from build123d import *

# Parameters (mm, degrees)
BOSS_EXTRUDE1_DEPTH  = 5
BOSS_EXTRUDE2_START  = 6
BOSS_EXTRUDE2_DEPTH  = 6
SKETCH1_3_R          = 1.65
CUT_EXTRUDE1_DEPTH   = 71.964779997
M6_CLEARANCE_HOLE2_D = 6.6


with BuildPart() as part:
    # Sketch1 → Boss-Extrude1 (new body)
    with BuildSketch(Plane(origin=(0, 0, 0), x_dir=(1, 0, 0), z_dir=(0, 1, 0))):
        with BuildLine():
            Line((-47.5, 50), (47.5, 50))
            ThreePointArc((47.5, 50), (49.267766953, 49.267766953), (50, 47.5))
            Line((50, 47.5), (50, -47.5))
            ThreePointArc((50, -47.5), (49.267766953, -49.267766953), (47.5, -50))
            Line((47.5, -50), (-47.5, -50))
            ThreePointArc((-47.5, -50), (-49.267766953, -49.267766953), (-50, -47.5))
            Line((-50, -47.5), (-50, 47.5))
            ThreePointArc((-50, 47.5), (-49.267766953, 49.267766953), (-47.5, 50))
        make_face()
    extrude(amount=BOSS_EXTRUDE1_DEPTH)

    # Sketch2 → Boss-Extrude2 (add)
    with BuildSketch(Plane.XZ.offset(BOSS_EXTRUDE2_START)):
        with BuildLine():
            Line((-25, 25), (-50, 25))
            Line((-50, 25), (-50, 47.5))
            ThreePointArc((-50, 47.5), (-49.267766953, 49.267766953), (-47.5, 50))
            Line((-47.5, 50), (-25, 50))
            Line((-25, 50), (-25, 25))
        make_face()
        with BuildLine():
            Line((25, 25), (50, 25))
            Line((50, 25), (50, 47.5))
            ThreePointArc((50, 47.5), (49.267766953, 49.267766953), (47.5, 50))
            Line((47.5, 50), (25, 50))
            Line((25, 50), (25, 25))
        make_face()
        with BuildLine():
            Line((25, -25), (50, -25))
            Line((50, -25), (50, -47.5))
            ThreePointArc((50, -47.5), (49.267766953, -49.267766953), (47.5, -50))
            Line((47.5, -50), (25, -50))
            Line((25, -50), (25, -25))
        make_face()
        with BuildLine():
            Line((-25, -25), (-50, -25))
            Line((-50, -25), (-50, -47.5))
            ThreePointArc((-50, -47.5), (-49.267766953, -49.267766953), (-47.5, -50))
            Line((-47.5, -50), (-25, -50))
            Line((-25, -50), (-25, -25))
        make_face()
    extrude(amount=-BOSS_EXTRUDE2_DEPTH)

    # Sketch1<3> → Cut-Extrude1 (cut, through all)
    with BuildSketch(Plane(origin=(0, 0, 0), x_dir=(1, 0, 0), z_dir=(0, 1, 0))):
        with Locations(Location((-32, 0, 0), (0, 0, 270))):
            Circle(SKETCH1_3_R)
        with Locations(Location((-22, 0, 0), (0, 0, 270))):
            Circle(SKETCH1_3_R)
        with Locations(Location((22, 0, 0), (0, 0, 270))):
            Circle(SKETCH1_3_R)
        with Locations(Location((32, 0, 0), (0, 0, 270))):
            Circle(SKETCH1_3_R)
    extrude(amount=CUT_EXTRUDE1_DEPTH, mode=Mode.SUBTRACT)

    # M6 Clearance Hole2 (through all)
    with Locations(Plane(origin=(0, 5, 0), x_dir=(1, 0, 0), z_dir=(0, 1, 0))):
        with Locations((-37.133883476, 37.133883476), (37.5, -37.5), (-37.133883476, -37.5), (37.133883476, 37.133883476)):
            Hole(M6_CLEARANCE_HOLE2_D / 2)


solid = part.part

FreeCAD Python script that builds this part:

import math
import FreeCAD as App
import Part
import Sketcher

V = App.Vector

doc = App.newDocument("Part")
params = doc.addObject("Spreadsheet::Sheet", "Params")
for row, (alias, value) in enumerate([
    ("sketch1_radius", "2.5 mm"),
    ("sketch1_width", "95 mm"),
    ("pad1_length", "5 mm"),
    ("sketch2_radius", "2.5 mm"),
    ("sketch2_width", "25 mm"),
    ("pad2_length", "6 mm"),
    ("sketch3_diameter", "3.3 mm"),
    ("sketch4_diameter", "6.6 mm"),
    ("hole_diameter", "6.6 mm"),
], start=1):
    params.set(f"A{row}", alias)
    params.set(f"B{row}", "=" + value)
    params.setAlias(f"B{row}", alias)

body = doc.addObject("PartDesign::Body", "Body")

# Sketch on XZ plane
sketch1 = body.newObject("Sketcher::SketchObject", "Sketch")
sketch1.AttachmentSupport = (doc.getObject("XZ_Plane"), [""])
sketch1.MapMode = "FlatFace"
sketch1.addGeometry([
    Part.LineSegment(V(47.5, -50, 0), V(-47.5, -50, 0)),  # 0
    Part.ArcOfCircle(Part.Circle(V(-47.5, -47.5, 0), V(0, 0, 1), 2.5), math.radians(180), math.radians(270)),  # 1
    Part.LineSegment(V(-50, -47.5, 0), V(-50, 47.5, 0)),  # 2
    Part.ArcOfCircle(Part.Circle(V(-47.5, 47.5, 0), V(0, 0, 1), 2.5), math.radians(90), math.radians(180)),  # 3
    Part.LineSegment(V(-47.5, 50, 0), V(47.5, 50, 0)),  # 4
    Part.ArcOfCircle(Part.Circle(V(47.5, 47.5, 0), V(0, 0, 1), 2.5), math.radians(0), math.radians(90)),  # 5
    Part.LineSegment(V(50, 47.5, 0), V(50, -47.5, 0)),  # 6
    Part.ArcOfCircle(Part.Circle(V(47.5, -47.5, 0), V(0, 0, 1), 2.5), math.radians(-90), math.radians(0)),  # 7
], False)
sketch1.addConstraint([
    Sketcher.Constraint("Tangent", 0, 2, 1, 2),
    Sketcher.Constraint("Tangent", 1, 1, 2, 1),
    Sketcher.Constraint("Tangent", 2, 2, 3, 2),
    Sketcher.Constraint("Tangent", 3, 1, 4, 1),
    Sketcher.Constraint("Tangent", 4, 2, 5, 2),
    Sketcher.Constraint("Tangent", 5, 1, 6, 1),
    Sketcher.Constraint("Tangent", 6, 2, 7, 2),
    Sketcher.Constraint("Tangent", 7, 1, 0, 1),
    Sketcher.Constraint("Horizontal", 0),
    Sketcher.Constraint("Vertical", 2),
    Sketcher.Constraint("Horizontal", 4),
    Sketcher.Constraint("Vertical", 6),
    Sketcher.Constraint("Equal", 1, 3),
    Sketcher.Constraint("Equal", 3, 5),
    Sketcher.Constraint("Equal", 5, 7),
    Sketcher.Constraint("Symmetric", 1, 3, 5, 3, -1, 1),
    Sketcher.Constraint("Equal", 4, 2),
    Sketcher.Constraint("Radius", 1, 2.5),
    Sketcher.Constraint("DistanceX", 0, 2, 0, 1, 95.0),
])
sketch1.setExpression("Constraints[17]", "Params.sketch1_radius")
sketch1.setExpression("Constraints[18]", "Params.sketch1_width")
pad1 = body.newObject("PartDesign::Pad", "Pad")
pad1.Profile = sketch1
pad1.setExpression("Length", "Params.pad1_length")
pad1.Reversed = True

# Sketch on XZ plane
sketch2 = body.newObject("Sketcher::SketchObject", "Sketch001")
sketch2.AttachmentSupport = (doc.getObject("XZ_Plane"), [""])
sketch2.MapMode = "FlatFace"
sketch2.AttachmentOffset = App.Placement(V(0, 0, 6), App.Rotation())
sketch2.addGeometry([
    Part.LineSegment(V(-50, 25, 0), V(-25, 25, 0)),  # 0
    Part.LineSegment(V(-25, 25, 0), V(-25, 50, 0)),  # 1
    Part.LineSegment(V(-25, 50, 0), V(-47.5, 50, 0)),  # 2
    Part.ArcOfCircle(Part.Circle(V(-47.5, 47.5, 0), V(0, 0, 1), 2.5), math.radians(90), math.radians(180)),  # 3
    Part.LineSegment(V(-50, 47.5, 0), V(-50, 25, 0)),  # 4
    Part.LineSegment(V(25, 25, 0), V(50, 25, 0)),  # 5
    Part.LineSegment(V(50, 25, 0), V(50, 47.5, 0)),  # 6
    Part.ArcOfCircle(Part.Circle(V(47.5, 47.5, 0), V(0, 0, 1), 2.5), math.radians(0), math.radians(90)),  # 7
    Part.LineSegment(V(47.5, 50, 0), V(25, 50, 0)),  # 8
    Part.LineSegment(V(25, 50, 0), V(25, 25, 0)),  # 9
    Part.LineSegment(V(50, -25, 0), V(25, -25, 0)),  # 10
    Part.LineSegment(V(25, -25, 0), V(25, -50, 0)),  # 11
    Part.LineSegment(V(25, -50, 0), V(47.5, -50, 0)),  # 12
    Part.ArcOfCircle(Part.Circle(V(47.5, -47.5, 0), V(0, 0, 1), 2.5), math.radians(-90), math.radians(0)),  # 13
    Part.LineSegment(V(50, -47.5, 0), V(50, -25, 0)),  # 14
    Part.LineSegment(V(-25, -25, 0), V(-50, -25, 0)),  # 15
    Part.LineSegment(V(-50, -25, 0), V(-50, -47.5, 0)),  # 16
    Part.ArcOfCircle(Part.Circle(V(-47.5, -47.5, 0), V(0, 0, 1), 2.5), math.radians(180), math.radians(270)),  # 17
    Part.LineSegment(V(-47.5, -50, 0), V(-25, -50, 0)),  # 18
    Part.LineSegment(V(-25, -50, 0), V(-25, -25, 0)),  # 19
], False)
sketch2.addConstraint([
    Sketcher.Constraint("Coincident", 0, 2, 1, 1),
    Sketcher.Constraint("Coincident", 1, 2, 2, 1),
    Sketcher.Constraint("Tangent", 2, 2, 3, 1),
    Sketcher.Constraint("Tangent", 3, 2, 4, 1),
    Sketcher.Constraint("Coincident", 4, 2, 0, 1),
    Sketcher.Constraint("Coincident", 5, 2, 6, 1),
    Sketcher.Constraint("Tangent", 6, 2, 7, 1),
    Sketcher.Constraint("Tangent", 7, 2, 8, 1),
    Sketcher.Constraint("Coincident", 8, 2, 9, 1),
    Sketcher.Constraint("Coincident", 9, 2, 5, 1),
    Sketcher.Constraint("Coincident", 10, 2, 11, 1),
    Sketcher.Constraint("Coincident", 11, 2, 12, 1),
    Sketcher.Constraint("Tangent", 12, 2, 13, 1),
    Sketcher.Constraint("Tangent", 13, 2, 14, 1),
    Sketcher.Constraint("Coincident", 14, 2, 10, 1),
    Sketcher.Constraint("Coincident", 15, 2, 16, 1),
    Sketcher.Constraint("Tangent", 16, 2, 17, 1),
    Sketcher.Constraint("Tangent", 17, 2, 18, 1),
    Sketcher.Constraint("Coincident", 18, 2, 19, 1),
    Sketcher.Constraint("Coincident", 19, 2, 15, 1),
    Sketcher.Constraint("Horizontal", 0),
    Sketcher.Constraint("Vertical", 1),
    Sketcher.Constraint("Horizontal", 2),
    Sketcher.Constraint("Vertical", 4),
    Sketcher.Constraint("Horizontal", 5),
    Sketcher.Constraint("Vertical", 6),
    Sketcher.Constraint("Horizontal", 8),
    Sketcher.Constraint("Vertical", 9),
    Sketcher.Constraint("Horizontal", 10),
    Sketcher.Constraint("Vertical", 11),
    Sketcher.Constraint("Horizontal", 12),
    Sketcher.Constraint("Vertical", 14),
    Sketcher.Constraint("Horizontal", 15),
    Sketcher.Constraint("Vertical", 16),
    Sketcher.Constraint("Horizontal", 18),
    Sketcher.Constraint("Vertical", 19),
    Sketcher.Constraint("Equal", 3, 7),
    Sketcher.Constraint("Equal", 7, 13),
    Sketcher.Constraint("Equal", 13, 17),
    Sketcher.Constraint("Symmetric", 3, 3, 13, 3, -1, 1),
    Sketcher.Constraint("Symmetric", 7, 3, 17, 3, -1, 1),
    Sketcher.Constraint("Symmetric", 0, 2, 10, 2, -1, 1),
    Sketcher.Constraint("Symmetric", 9, 2, 19, 2, -1, 1),
    Sketcher.Constraint("Symmetric", 3, 3, 7, 3, -2),
    Sketcher.Constraint("Symmetric", 0, 2, 9, 2, -2),
    Sketcher.Constraint("Equal", 15, 1),
    Sketcher.Constraint("Radius", 3, 2.5),
    Sketcher.Constraint("DistanceX", 0, 1, 0, 2, 25.0),
    Sketcher.Constraint("DistanceX", 0, 2, -1, 1, 25.0),
    Sketcher.Constraint("DistanceY", -1, 1, 0, 2, 25.0),
])
sketch2.setExpression("Constraints[46]", "Params.sketch2_radius")
sketch2.setExpression("Constraints[47]", "Params.sketch2_width")
pad2 = body.newObject("PartDesign::Pad", "Pad001")
pad2.Profile = sketch2
pad2.setExpression("Length", "Params.pad2_length")
pad2.Reversed = True

# Sketch on XZ plane
sketch3 = body.newObject("Sketcher::SketchObject", "Sketch002")
sketch3.AttachmentSupport = (doc.getObject("XZ_Plane"), [""])
sketch3.MapMode = "FlatFace"
sketch3.addGeometry([
    Part.Circle(V(-32, 0, 0), V(0, 0, 1), 1.6),
    Part.Circle(V(-22, 0, 0), V(0, 0, 1), 1.6),
    Part.Circle(V(22, 0, 0), V(0, 0, 1), 1.6),
    Part.Circle(V(32, 0, 0), V(0, 0, 1), 1.6),
], False)
sketch3.addConstraint([
    Sketcher.Constraint("Equal", 0, 1),
    Sketcher.Constraint("Equal", 1, 2),
    Sketcher.Constraint("Equal", 2, 3),
    Sketcher.Constraint("Symmetric", 1, 3, 2, 3, -1, 1),
    Sketcher.Constraint("Symmetric", 0, 3, 3, 3, -1, 1),
    Sketcher.Constraint("PointOnObject", 0, 3, -1),
    Sketcher.Constraint("PointOnObject", 1, 3, -1),
    Sketcher.Constraint("Diameter", 0, 3.3),
    Sketcher.Constraint("DistanceX", 0, 3, -1, 1, 32.0),
    Sketcher.Constraint("DistanceX", 1, 3, -1, 1, 22.0),
])
sketch3.setExpression("Constraints[7]", "Params.sketch3_diameter")
pocket1 = body.newObject("PartDesign::Pocket", "Pocket")
pocket1.Profile = sketch3
pocket1.Type = "ThroughAll"

# Sketch on XZ plane
sketch4 = body.newObject("Sketcher::SketchObject", "Sketch003")
sketch4.AttachmentSupport = (doc.getObject("XZ_Plane"), [""])
sketch4.MapMode = "FlatFace"
sketch4.AttachmentOffset = App.Placement(V(0, 0, -5), App.Rotation())
sketch4.addGeometry([
    Part.Circle(V(-37.1, -37.1, 0), V(0, 0, 1), 3.3),
    Part.Circle(V(37.5, 37.5, 0), V(0, 0, 1), 3.3),
    Part.Circle(V(-37.1, 37.5, 0), V(0, 0, 1), 3.3),
    Part.Circle(V(37.1, -37.1, 0), V(0, 0, 1), 3.3),
], False)
sketch4.addConstraint([
    Sketcher.Constraint("Equal", 0, 1),
    Sketcher.Constraint("Equal", 1, 2),
    Sketcher.Constraint("Equal", 2, 3),
    Sketcher.Constraint("Symmetric", 0, 3, 3, 3, -2),
    Sketcher.Constraint("Horizontal", 1, 3, 2, 3),
    Sketcher.Constraint("Vertical", 0, 3, 2, 3),
    Sketcher.Constraint("Diameter", 0, 6.6),
    Sketcher.Constraint("DistanceX", -1, 1, 1, 3, 37.5),
    Sketcher.Constraint("DistanceY", -1, 1, 1, 3, 37.5),
    Sketcher.Constraint("DistanceX", 0, 3, -1, 1, 37.133883),
    Sketcher.Constraint("DistanceY", 0, 3, -1, 1, 37.133883),
])
sketch4.setExpression("Constraints[6]", "Params.sketch4_diameter")
doc.recompute()
hole = body.newObject("PartDesign::Hole", "Hole")
hole.Profile = sketch4
hole.ThreadType = "None"
hole.setExpression("Diameter", "Params.hole_diameter")
hole.DepthType = "ThroughAll"
hole.Reversed = True

doc.recompute()
